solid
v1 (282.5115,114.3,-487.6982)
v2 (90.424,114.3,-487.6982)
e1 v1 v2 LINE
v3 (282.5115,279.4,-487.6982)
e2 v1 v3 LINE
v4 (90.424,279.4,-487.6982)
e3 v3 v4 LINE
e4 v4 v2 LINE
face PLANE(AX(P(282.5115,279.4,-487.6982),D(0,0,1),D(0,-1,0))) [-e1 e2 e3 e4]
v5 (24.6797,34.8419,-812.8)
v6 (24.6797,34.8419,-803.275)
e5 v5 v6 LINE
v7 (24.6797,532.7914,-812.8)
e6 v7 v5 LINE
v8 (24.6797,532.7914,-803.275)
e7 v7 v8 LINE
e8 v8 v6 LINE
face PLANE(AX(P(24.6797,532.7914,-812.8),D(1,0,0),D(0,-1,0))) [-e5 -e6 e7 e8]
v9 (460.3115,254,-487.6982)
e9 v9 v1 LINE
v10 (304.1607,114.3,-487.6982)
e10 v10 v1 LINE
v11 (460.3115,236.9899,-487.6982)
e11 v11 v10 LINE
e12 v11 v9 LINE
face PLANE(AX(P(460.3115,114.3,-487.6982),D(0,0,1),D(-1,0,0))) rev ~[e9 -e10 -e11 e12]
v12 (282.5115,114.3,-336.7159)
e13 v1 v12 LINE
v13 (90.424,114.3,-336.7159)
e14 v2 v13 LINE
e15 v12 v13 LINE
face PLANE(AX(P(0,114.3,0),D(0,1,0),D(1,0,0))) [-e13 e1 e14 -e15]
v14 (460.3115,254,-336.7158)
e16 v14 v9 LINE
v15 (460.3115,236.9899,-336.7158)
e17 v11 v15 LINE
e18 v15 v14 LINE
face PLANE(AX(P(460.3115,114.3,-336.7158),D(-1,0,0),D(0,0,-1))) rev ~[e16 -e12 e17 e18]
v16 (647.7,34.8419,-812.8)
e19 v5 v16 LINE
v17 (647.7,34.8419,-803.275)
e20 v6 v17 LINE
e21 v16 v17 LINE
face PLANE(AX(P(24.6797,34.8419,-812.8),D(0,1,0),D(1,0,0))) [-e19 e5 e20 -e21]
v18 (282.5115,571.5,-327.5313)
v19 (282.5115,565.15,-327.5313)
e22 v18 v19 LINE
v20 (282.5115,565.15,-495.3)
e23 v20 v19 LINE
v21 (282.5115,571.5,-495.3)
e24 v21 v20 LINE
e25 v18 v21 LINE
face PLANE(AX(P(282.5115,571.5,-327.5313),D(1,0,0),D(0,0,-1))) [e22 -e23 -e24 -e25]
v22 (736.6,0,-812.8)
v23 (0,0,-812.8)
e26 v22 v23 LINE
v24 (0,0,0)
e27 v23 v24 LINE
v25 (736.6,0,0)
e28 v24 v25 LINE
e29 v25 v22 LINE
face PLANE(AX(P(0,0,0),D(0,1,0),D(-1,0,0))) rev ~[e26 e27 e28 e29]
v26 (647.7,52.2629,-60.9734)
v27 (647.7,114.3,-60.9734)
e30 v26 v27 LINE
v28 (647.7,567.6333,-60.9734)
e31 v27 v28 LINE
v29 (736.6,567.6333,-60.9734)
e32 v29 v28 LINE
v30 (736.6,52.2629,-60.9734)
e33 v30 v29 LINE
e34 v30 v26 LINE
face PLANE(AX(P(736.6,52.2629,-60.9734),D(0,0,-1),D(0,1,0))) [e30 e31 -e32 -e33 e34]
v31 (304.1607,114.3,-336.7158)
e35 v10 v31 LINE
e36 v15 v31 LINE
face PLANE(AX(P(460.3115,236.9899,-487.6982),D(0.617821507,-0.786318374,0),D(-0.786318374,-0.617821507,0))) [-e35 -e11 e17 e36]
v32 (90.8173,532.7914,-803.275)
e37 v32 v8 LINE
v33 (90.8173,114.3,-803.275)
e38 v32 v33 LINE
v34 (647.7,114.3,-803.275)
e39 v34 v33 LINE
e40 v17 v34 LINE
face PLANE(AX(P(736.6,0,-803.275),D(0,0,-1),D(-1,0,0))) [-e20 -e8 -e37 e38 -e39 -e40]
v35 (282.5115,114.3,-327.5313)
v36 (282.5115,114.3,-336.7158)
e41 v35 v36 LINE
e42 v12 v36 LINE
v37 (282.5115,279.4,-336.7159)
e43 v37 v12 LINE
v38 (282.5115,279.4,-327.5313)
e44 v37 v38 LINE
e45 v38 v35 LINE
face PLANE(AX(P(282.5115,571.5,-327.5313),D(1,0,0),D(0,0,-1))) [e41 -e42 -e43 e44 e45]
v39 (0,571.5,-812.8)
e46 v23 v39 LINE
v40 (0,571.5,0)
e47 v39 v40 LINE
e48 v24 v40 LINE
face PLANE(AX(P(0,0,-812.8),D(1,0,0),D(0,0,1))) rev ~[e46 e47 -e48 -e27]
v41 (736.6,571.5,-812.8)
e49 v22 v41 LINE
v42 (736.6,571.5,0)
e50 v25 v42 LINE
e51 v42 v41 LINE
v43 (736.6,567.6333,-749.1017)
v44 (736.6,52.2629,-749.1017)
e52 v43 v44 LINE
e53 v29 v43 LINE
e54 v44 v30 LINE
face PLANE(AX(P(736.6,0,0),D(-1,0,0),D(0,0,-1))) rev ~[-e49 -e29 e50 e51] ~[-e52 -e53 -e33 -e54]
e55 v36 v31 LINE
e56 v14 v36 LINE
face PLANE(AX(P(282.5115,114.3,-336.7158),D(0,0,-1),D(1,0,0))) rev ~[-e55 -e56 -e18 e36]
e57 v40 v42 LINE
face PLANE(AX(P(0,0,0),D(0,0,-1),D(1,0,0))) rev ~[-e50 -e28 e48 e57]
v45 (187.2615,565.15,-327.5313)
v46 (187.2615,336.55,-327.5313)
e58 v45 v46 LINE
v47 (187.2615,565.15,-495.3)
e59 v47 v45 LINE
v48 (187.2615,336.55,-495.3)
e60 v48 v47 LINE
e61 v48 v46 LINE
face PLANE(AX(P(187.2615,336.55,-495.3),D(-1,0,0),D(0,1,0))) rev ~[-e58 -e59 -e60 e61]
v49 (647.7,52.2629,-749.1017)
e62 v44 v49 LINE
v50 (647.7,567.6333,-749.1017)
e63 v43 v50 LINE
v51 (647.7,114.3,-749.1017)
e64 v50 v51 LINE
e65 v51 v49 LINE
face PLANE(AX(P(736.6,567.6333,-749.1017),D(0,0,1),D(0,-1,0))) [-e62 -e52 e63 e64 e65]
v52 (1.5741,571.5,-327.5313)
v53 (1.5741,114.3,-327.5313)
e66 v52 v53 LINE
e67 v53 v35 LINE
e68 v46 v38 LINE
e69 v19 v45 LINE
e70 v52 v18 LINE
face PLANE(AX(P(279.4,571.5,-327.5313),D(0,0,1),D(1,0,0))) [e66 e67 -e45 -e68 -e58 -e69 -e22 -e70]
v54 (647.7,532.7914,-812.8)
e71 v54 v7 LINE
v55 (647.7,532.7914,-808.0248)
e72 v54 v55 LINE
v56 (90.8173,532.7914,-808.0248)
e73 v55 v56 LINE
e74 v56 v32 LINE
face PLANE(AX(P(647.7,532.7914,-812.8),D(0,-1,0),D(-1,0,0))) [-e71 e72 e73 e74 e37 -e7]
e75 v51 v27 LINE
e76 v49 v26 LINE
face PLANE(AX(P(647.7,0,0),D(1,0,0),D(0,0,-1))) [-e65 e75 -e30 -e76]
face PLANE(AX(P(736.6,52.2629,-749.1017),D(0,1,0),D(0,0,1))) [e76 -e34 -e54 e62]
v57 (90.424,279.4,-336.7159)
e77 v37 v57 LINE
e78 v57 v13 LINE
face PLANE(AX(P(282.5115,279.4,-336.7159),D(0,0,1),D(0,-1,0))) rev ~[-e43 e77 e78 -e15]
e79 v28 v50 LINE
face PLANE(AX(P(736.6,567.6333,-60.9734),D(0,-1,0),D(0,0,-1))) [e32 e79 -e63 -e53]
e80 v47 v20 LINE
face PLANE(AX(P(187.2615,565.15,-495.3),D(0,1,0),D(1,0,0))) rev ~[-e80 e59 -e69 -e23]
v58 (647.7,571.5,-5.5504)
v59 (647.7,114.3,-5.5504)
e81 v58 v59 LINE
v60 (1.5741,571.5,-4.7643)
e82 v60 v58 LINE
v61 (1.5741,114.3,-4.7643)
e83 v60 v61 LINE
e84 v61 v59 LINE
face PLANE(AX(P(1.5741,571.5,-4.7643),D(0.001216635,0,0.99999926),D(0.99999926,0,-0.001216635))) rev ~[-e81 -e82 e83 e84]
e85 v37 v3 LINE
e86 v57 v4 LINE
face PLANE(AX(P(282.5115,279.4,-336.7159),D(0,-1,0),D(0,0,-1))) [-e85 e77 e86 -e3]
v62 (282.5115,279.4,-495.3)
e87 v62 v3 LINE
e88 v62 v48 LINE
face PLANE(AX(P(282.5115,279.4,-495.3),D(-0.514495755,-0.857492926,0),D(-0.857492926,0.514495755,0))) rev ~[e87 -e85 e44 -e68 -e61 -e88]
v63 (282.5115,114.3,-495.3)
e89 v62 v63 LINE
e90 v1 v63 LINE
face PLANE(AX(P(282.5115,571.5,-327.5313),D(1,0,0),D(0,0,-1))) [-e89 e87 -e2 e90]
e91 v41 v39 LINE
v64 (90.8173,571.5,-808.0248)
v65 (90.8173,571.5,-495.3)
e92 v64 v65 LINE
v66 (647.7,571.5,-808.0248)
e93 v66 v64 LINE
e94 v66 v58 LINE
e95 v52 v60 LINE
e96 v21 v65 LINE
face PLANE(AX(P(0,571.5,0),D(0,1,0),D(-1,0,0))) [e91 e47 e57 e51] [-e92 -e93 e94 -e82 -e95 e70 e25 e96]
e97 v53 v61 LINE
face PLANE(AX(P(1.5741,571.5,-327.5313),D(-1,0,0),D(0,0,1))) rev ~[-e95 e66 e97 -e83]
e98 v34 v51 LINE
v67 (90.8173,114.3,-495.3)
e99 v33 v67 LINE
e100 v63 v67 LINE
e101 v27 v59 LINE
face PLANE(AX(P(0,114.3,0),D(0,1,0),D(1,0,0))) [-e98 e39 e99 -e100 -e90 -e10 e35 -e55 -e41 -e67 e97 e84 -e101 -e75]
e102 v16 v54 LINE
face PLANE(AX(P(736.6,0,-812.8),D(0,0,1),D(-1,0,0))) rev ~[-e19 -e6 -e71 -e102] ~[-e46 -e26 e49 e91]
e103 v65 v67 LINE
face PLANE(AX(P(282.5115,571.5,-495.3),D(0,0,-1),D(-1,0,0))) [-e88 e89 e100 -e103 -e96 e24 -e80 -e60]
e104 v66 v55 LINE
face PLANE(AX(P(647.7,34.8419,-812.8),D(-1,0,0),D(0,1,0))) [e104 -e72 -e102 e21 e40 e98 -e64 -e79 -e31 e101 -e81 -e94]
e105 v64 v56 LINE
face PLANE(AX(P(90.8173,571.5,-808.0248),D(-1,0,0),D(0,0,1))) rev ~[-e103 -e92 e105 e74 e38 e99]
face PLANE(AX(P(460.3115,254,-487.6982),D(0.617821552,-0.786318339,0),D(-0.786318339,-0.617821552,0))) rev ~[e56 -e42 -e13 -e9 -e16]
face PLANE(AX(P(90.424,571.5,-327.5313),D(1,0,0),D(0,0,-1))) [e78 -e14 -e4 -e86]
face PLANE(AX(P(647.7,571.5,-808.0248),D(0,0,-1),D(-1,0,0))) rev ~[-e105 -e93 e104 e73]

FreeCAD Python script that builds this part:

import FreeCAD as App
import Part
import Sketcher
from FreeCAD import Vector
Q = App.Units.Quantity

doc = App.newDocument("Part")
params = doc.addObject("Spreadsheet::Sheet", "Params")
for row, (alias, value) in enumerate([
    ("sketch1_width", "29 in"),
    ("sketch1_height", "32 in"),
    ("pad1_length", "22.5 in"),
    ("sketch2_height", "12.312 in"),
    ("pocket1_length", "18 in"),
    ("pocket2_length", "3.5 in"),
    ("sketch4_width", "6.5 in"),
    ("pocket3_length", "7.5625 in"),
    ("pocket4_length", "0.375 in"),
    ("sketch6_height", "9 in"),
    ("sketch6_width", "3.75 in"),
    ("pocket5_length", "7.5625 in"),
    ("sketch7_width", "7 in"),
    ("pad2_length", "5.5 in"),
    ("pocket6_length", "7.4375 in"),
    ("sketch9_width", "7 in"),
    ("sketch9_height", "5.5 in"),
    ("pocket7_length", "7.3125 in"),
], start=1):
    params.set(f"A{row}", alias)
    params.set(f"B{row}", "=" + value)
    params.setAlias(f"B{row}", alias)

body = doc.addObject("PartDesign::Body", "Body")

sketch1 = body.newObject("Sketcher::SketchObject", "Sketch")
sketch1.AttachmentSupport = (doc.getObject("XZ_Plane"), [""])
sketch1.MapMode = "FlatFace"
sketch1.addGeometry([
    Part.LineSegment(Vector(0, -813, 0), Vector(0, 0, 0)),
    Part.LineSegment(Vector(0, 0, 0), Vector(737, 0, 0)),
    Part.LineSegment(Vector(737, 0, 0), Vector(737, -813, 0)),
    Part.LineSegment(Vector(737, -813, 0), Vector(0, -813, 0)),
], False)
sketch1.addConstraint([
    Sketcher.Constraint("Coincident", 0, 2, 1, 1),
    Sketcher.Constraint("Coincident", 1, 2, 2, 1),
    Sketcher.Constraint("Coincident", 2, 2, 3, 1),
    Sketcher.Constraint("Coincident", 3, 2, 0, 1),
    Sketcher.Constraint("Vertical", 0),
    Sketcher.Constraint("Horizontal", 1),
    Sketcher.Constraint("Vertical", 2),
    Sketcher.Constraint("Horizontal", 3),
    Sketcher.Constraint("Coincident", 0, 2, -1, 1),
    Sketcher.Constraint("DistanceX", 1, 1, 1, 2, Q("29 in")),
    Sketcher.Constraint("DistanceY", 0, 1, 0, 2, Q("32 in")),
])
sketch1.setExpression("Constraints[9]", "Params.sketch1_width")
sketch1.setExpression("Constraints[10]", "Params.sketch1_height")
pad1 = body.newObject("PartDesign::Pad", "Pad")
pad1.Profile = sketch1
pad1.setExpression("Length", "Params.pad1_length")
pad1.Reversed = True

sketch2 = body.newObject("Sketcher::SketchObject", "Sketch001")
sketch2.AttachmentSupport = (doc.getObject("XZ_Plane"), [""])
sketch2.MapMode = "FlatFace"
sketch2.AttachmentOffset = App.Placement(Vector(0, 0, -22.5 * 25.4), App.Rotation())
sketch2.addGeometry([
    Part.LineSegment(Vector(648, -6, 0), Vector(648, -808, 0)),
    Part.LineSegment(Vector(648, -808, 0), Vector(91, -808, 0)),
    Part.LineSegment(Vector(91, -808, 0), Vector(91, -495, 0)),
    Part.LineSegment(Vector(91, -495, 0), Vector(283, -495, 0)),
    Part.LineSegment(Vector(283, -495, 0), Vector(283, -328, 0)),
    Part.LineSegment(Vector(283, -328, 0), Vector(2, -328, 0)),
    Part.LineSegment(Vector(2, -328, 0), Vector(2, -5, 0)),
    Part.LineSegment(Vector(2, -5, 0), Vector(648, -6, 0)),
], False)
sketch2.addConstraint([
    Sketcher.Constraint("Coincident", 0, 2, 1, 1),
    Sketcher.Constraint("Coincident", 1, 2, 2, 1),
    Sketcher.Constraint("Coincident", 2, 2, 3, 1),
    Sketcher.Constraint("Coincident", 3, 2, 4, 1),
    Sketcher.Constraint("Coincident", 4, 2, 5, 1),
    Sketcher.Constraint("Coincident", 5, 2, 6, 1),
    Sketcher.Constraint("Coincident", 6, 2, 7, 1),
    Sketcher.Constraint("Coincident", 7, 2, 0, 1),
    Sketcher.Constraint("Vertical", 0),
    Sketcher.Constraint("Horizontal", 1),
    Sketcher.Constraint("Vertical", 2),
    Sketcher.Constraint("Horizontal", 3),
    Sketcher.Constraint("Vertical", 4),
    Sketcher.Constraint("Horizontal", 5),
    Sketcher.Constraint("Vertical", 6),
    Sketcher.Constraint("DistanceX", -1, 1, 0, 2, Q("25.5 in")),
    Sketcher.Constraint("DistanceY", 2, 2, -1, 1, Q("19.5 in")),
    Sketcher.Constraint("DistanceY", 2, 1, 2, 2, Q("12.312 in")),
    Sketcher.Constraint("Angle", 7, Q("-0.0697 deg")),
    Sketcher.Constraint("DistanceX", 1, 2, 1, 1, Q("556.8827 mm")),
    Sketcher.Constraint("DistanceX", 3, 1, 3, 2, Q("191.6942 mm")),
    Sketcher.Constraint("DistanceX", 5, 2, 5, 1, Q("280.9374 mm")),
    Sketcher.Constraint("DistanceY", 0, 2, 0, 1, Q("802.4744 mm")),
    Sketcher.Constraint("DistanceY", 4, 1, 4, 2, Q("167.7687 mm")),
])
sketch2.setExpression("Constraints[17]", "Params.sketch2_height")
pocket1 = body.newObject("PartDesign::Pocket", "Pocket")
pocket1.Profile = sketch2
pocket1.setExpression("Length", "Params.pocket1_length")
pocket1.Reversed = True

sketch3 = body.newObject("Sketcher::SketchObject", "Sketch002")
sketch3.AttachmentSupport = (doc.getObject("YZ_Plane"), [""])
sketch3.MapMode = "FlatFace"
sketch3.AttachmentOffset = App.Placement(Vector(0, 0, 29 * 25.4), App.Rotation())
sketch3.addGeometry([
    Part.LineSegment(Vector(568, -749, 0), Vector(568, -61, 0)),
    Part.LineSegment(Vector(568, -61, 0), Vector(52, -61, 0)),
    Part.LineSegment(Vector(52, -61, 0), Vector(52, -749, 0)),
    Part.LineSegment(Vector(52, -749, 0), Vector(568, -749, 0)),
], False)
sketch3.addConstraint([
    Sketcher.Constraint("Coincident", 0, 2, 1, 1),
    Sketcher.Constraint("Coincident", 1, 2, 2, 1),
    Sketcher.Constraint("Coincident", 2, 2, 3, 1),
    Sketcher.Constraint("Coincident", 3, 2, 0, 1),
    Sketcher.Constraint("Vertical", 0),
    Sketcher.Constraint("Horizontal", 1),
    Sketcher.Constraint("Vertical", 2),
    Sketcher.Constraint("Horizontal", 3),
    Sketcher.Constraint("DistanceX", 1, 2, 1, 1, Q("515.3704 mm")),
    Sketcher.Constraint("DistanceY", 0, 1, 0, 2, Q("688.1283 mm")),
    Sketcher.Constraint("DistanceX", -1, 1, 1, 2, Q("2.0576 in")),
    Sketcher.Constraint("DistanceY", 2, 2, -1, 1, Q("29.4922 in")),
])
pocket2 = body.newObject("PartDesign::Pocket", "Pocket001")
pocket2.Profile = sketch3
pocket2.setExpression("Length", "Params.pocket2_length")

sketch4 = body.newObject("Sketcher::SketchObject", "Sketch003")
sketch4.AttachmentSupport = (doc.getObject("YZ_Plane"), [""])
sketch4.MapMode = "FlatFace"
sketch4.AttachmentOffset = App.Placement(Vector(0, 0, 11.1225 * 25.4), App.Rotation())
sketch4.addGeometry([
    Part.LineSegment(Vector(279, -488, 0), Vector(279, -337, 0)),
    Part.LineSegment(Vector(279, -337, 0), Vector(114, -337, 0)),
    Part.LineSegment(Vector(114, -337, 0), Vector(114, -488, 0)),
    Part.LineSegment(Vector(114, -488, 0), Vector(279, -488, 0)),
], False)
sketch4.addConstraint([
    Sketcher.Constraint("Coincident", 0, 2, 1, 1),
    Sketcher.Constraint("Coincident", 1, 2, 2, 1),
    Sketcher.Constraint("Coincident", 2, 2, 3, 1),
    Sketcher.Constraint("Coincident", 3, 2, 0, 1),
    Sketcher.Constraint("Vertical", 0),
    Sketcher.Constraint("Horizontal", 1),
    Sketcher.Constraint("Vertical", 2),
    Sketcher.Constraint("Horizontal", 3),
    Sketcher.Constraint("DistanceX", 1, 2, 1, 1, Q("6.5 in")),
    Sketcher.Constraint("DistanceX", -1, 1, 0, 2, Q("11 in")),
    Sketcher.Constraint("DistanceY", 0, 1, 0, 2, Q("150.9823 mm")),
    Sketcher.Constraint("DistanceY", 0, 2, -1, 1, Q("336.716 mm")),
])
sketch4.setExpression("Constraints[8]", "Params.sketch4_width")
pocket3 = body.newObject("PartDesign::Pocket", "Pocket002")
pocket3.Profile = sketch4
pocket3.setExpression("Length", "Params.pocket3_length")

sketch5 = body.newObject("Sketcher::SketchObject", "Sketch004")
sketch5.AttachmentSupport = (doc.getObject("XY_Plane"), [""])
sketch5.MapMode = "FlatFace"
sketch5.AttachmentOffset = App.Placement(Vector(0, 0, -32 * 25.4), App.Rotation())
sketch5.addGeometry([
    Part.LineSegment(Vector(25, 533, 0), Vector(648, 533, 0)),
    Part.LineSegment(Vector(648, 533, 0), Vector(648, 35, 0)),
    Part.LineSegment(Vector(648, 35, 0), Vector(25, 35, 0)),
    Part.LineSegment(Vector(25, 35, 0), Vector(25, 533, 0)),
], False)
sketch5.addConstraint([
    Sketcher.Constraint("Coincident", 0, 2, 1, 1),
    Sketcher.Constraint("Coincident", 1, 2, 2, 1),
    Sketcher.Constraint("Coincident", 2, 2, 3, 1),
    Sketcher.Constraint("Coincident", 3, 2, 0, 1),
    Sketcher.Constraint("Horizontal", 0),
    Sketcher.Constraint("Vertical", 1),
    Sketcher.Constraint("Horizontal", 2),
    Sketcher.Constraint("Vertical", 3),
    Sketcher.Constraint("DistanceX", -1, 1, 0, 2, Q("25.5 in")),
    Sketcher.Constraint("DistanceY", 1, 2, 1, 1, Q("19.6043 in")),
    Sketcher.Constraint("DistanceX", 0, 1, 0, 2, Q("623.0203 mm")),
    Sketcher.Constraint("DistanceY", -1, 1, 0, 2, Q("532.7914 mm")),
])
pocket4 = body.newObject("PartDesign::Pocket", "Pocket003")
pocket4.Profile = sketch5
pocket4.setExpression("Length", "Params.pocket4_length")
pocket4.Reversed = True

sketch6 = body.newObject("Sketcher::SketchObject", "Sketch005")
sketch6.AttachmentSupport = (doc.getObject("XY_Plane"), [""])
sketch6.MapMode = "FlatFace"
sketch6.AttachmentOffset = App.Placement(Vector(0, 0, -19.5 * 25.4), App.Rotation())
sketch6.addGeometry([
    Part.LineSegment(Vector(187, 565, 0), Vector(283, 565, 0)),
    Part.LineSegment(Vector(283, 565, 0), Vector(283, 279, 0)),
    Part.LineSegment(Vector(283, 279, 0), Vector(187, 337, 0)),
    Part.LineSegment(Vector(187, 337, 0), Vector(187, 565, 0)),
], False)
sketch6.addConstraint([
    Sketcher.Constraint("Coincident", 0, 2, 1, 1),
    Sketcher.Constraint("Coincident", 1, 2, 2, 1),
    Sketcher.Constraint("Coincident", 2, 2, 3, 1),
    Sketcher.Constraint("Coincident", 3, 2, 0, 1),
    Sketcher.Constraint("Horizontal", 0),
    Sketcher.Constraint("Vertical", 1),
    Sketcher.Constraint("Vertical", 3),
    Sketcher.Constraint("DistanceY", 3, 1, 3, 2, Q("9 in")),
    Sketcher.Constraint("DistanceX", 0, 1, 0, 2, Q("3.75 in")),
    Sketcher.Constraint("DistanceY", 1, 2, 2, 2, Q("2.25 in")),
    Sketcher.Constraint("DistanceY", -1, 1, 1, 2, Q("11 in")),
    Sketcher.Constraint("DistanceX", -1, 1, 0, 2, Q("11.1225 in")),
])
sketch6.setExpression("Constraints[7]", "Params.sketch6_height")
sketch6.setExpression("Constraints[8]", "Params.sketch6_width")
pocket5 = body.newObject("PartDesign::Pocket", "Pocket004")
pocket5.Profile = sketch6
pocket5.setExpression("Length", "Params.pocket5_length")
pocket5.Reversed = True

sketch7 = body.newObject("Sketcher::SketchObject", "Sketch006")
sketch7.AttachmentSupport = (doc.getObject("XZ_Plane"), [""])
sketch7.MapMode = "FlatFace"
sketch7.AttachmentOffset = App.Placement(Vector(0, 0, -4.5 * 25.4), App.Rotation())
sketch7.addGeometry([
    Part.LineSegment(Vector(283, -488, 0), Vector(283, -337, 0)),
    Part.LineSegment(Vector(283, -337, 0), Vector(460, -337, 0)),
    Part.LineSegment(Vector(460, -337, 0), Vector(460, -488, 0)),
    Part.LineSegment(Vector(460, -488, 0), Vector(283, -488, 0)),
], False)
sketch7.addConstraint([
    Sketcher.Constraint("Coincident", 0, 2, 1, 1),
    Sketcher.Constraint("Coincident", 1, 2, 2, 1),
    Sketcher.Constraint("Coincident", 2, 2, 3, 1),
    Sketcher.Constraint("Coincident", 3, 2, 0, 1),
    Sketcher.Constraint("Vertical", 0),
    Sketcher.Constraint("Horizontal", 1),
    Sketcher.Constraint("Vertical", 2),
    Sketcher.Constraint("Horizontal", 3),
    Sketcher.Constraint("DistanceX", 1, 1, 1, 2, Q("7 in")),
    Sketcher.Constraint("DistanceY", 0, 1, 0, 2, Q("5.9442 in")),
    Sketcher.Constraint("DistanceX", -1, 1, 0, 2, Q("11.1225 in")),
    Sketcher.Constraint("DistanceY", 0, 2, -1, 1, Q("336.7158 mm")),
])
sketch7.setExpression("Constraints[8]", "Params.sketch7_width")
pad2 = body.newObject("PartDesign::Pad", "Pad001")
pad2.Profile = sketch7
pad2.setExpression("Length", "Params.pad2_length")
pad2.Reversed = True

sketch8 = body.newObject("Sketcher::SketchObject", "Sketch007")
sketch8.AttachmentSupport = (doc.getObject("XY_Plane"), [""])
sketch8.MapMode = "FlatFace"
sketch8.AttachmentOffset = App.Placement(Vector(0, 0, -487.6982), App.Rotation())
sketch8.addGeometry([
    Part.LineSegment(Vector(460, 237, 0), Vector(460, 114, 0)),
    Part.LineSegment(Vector(460, 114, 0), Vector(304, 114, 0)),
    Part.LineSegment(Vector(304, 114, 0), Vector(460, 237, 0)),
], False)
sketch8.addConstraint([
    Sketcher.Constraint("Coincident", 0, 2, 1, 1),
    Sketcher.Constraint("Coincident", 1, 2, 2, 1),
    Sketcher.Constraint("Coincident", 2, 2, 0, 1),
    Sketcher.Constraint("Vertical", 0),
    Sketcher.Constraint("Horizontal", 1),
    Sketcher.Constraint("DistanceY", -1, 1, 0, 2, Q("4.5 in")),
    Sketcher.Constraint("DistanceY", 0, 2, 0, 1, Q("4.8303 in")),
    Sketcher.Constraint("Distance", 2, Q("7.8183 in")),
    Sketcher.Constraint("DistanceX", -1, 1, 0, 2, Q("18.1225 in")),
])
pocket6 = body.newObject("PartDesign::Pocket", "Pocket005")
pocket6.Profile = sketch8
pocket6.setExpression("Length", "Params.pocket6_length")
pocket6.Reversed = True

sketch9 = body.newObject("Sketcher::SketchObject", "Sketch008")
sketch9.AttachmentSupport = (doc.getObject("XY_Plane"), [""])
sketch9.MapMode = "FlatFace"
sketch9.AttachmentOffset = App.Placement(Vector(0, 0, -487.6982), App.Rotation())
sketch9.addGeometry([
    Part.LineSegment(Vector(283, 114, 0), Vector(283, 254, 0)),
    Part.LineSegment(Vector(283, 254, 0), Vector(460, 254, 0)),
    Part.LineSegment(Vector(460, 254, 0), Vector(283, 114, 0)),
], False)
sketch9.addConstraint([
    Sketcher.Constraint("Coincident", 0, 2, 1, 1),
    Sketcher.Constraint("Coincident", 1, 2, 2, 1),
    Sketcher.Constraint("Coincident", 2, 2, 0, 1),
    Sketcher.Constraint("Vertical", 0),
    Sketcher.Constraint("Horizontal", 1),
    Sketcher.Constraint("DistanceX", 1, 1, 1, 2, Q("7 in")),
    Sketcher.Constraint("DistanceY", 0, 1, 0, 2, Q("5.5 in")),
    Sketcher.Constraint("DistanceY", -1, 1, 0, 2, Q("10 in")),
    Sketcher.Constraint("DistanceX", -1, 1, 0, 2, Q("11.1225 in")),
])
sketch9.setExpression("Constraints[5]", "Params.sketch9_width")
sketch9.setExpression("Constraints[6]", "Params.sketch9_height")
pocket7 = body.newObject("PartDesign::Pocket", "Pocket006")
pocket7.Profile = sketch9
pocket7.setExpression("Length", "Params.pocket7_length")
pocket7.Reversed = True

doc.recompute()
